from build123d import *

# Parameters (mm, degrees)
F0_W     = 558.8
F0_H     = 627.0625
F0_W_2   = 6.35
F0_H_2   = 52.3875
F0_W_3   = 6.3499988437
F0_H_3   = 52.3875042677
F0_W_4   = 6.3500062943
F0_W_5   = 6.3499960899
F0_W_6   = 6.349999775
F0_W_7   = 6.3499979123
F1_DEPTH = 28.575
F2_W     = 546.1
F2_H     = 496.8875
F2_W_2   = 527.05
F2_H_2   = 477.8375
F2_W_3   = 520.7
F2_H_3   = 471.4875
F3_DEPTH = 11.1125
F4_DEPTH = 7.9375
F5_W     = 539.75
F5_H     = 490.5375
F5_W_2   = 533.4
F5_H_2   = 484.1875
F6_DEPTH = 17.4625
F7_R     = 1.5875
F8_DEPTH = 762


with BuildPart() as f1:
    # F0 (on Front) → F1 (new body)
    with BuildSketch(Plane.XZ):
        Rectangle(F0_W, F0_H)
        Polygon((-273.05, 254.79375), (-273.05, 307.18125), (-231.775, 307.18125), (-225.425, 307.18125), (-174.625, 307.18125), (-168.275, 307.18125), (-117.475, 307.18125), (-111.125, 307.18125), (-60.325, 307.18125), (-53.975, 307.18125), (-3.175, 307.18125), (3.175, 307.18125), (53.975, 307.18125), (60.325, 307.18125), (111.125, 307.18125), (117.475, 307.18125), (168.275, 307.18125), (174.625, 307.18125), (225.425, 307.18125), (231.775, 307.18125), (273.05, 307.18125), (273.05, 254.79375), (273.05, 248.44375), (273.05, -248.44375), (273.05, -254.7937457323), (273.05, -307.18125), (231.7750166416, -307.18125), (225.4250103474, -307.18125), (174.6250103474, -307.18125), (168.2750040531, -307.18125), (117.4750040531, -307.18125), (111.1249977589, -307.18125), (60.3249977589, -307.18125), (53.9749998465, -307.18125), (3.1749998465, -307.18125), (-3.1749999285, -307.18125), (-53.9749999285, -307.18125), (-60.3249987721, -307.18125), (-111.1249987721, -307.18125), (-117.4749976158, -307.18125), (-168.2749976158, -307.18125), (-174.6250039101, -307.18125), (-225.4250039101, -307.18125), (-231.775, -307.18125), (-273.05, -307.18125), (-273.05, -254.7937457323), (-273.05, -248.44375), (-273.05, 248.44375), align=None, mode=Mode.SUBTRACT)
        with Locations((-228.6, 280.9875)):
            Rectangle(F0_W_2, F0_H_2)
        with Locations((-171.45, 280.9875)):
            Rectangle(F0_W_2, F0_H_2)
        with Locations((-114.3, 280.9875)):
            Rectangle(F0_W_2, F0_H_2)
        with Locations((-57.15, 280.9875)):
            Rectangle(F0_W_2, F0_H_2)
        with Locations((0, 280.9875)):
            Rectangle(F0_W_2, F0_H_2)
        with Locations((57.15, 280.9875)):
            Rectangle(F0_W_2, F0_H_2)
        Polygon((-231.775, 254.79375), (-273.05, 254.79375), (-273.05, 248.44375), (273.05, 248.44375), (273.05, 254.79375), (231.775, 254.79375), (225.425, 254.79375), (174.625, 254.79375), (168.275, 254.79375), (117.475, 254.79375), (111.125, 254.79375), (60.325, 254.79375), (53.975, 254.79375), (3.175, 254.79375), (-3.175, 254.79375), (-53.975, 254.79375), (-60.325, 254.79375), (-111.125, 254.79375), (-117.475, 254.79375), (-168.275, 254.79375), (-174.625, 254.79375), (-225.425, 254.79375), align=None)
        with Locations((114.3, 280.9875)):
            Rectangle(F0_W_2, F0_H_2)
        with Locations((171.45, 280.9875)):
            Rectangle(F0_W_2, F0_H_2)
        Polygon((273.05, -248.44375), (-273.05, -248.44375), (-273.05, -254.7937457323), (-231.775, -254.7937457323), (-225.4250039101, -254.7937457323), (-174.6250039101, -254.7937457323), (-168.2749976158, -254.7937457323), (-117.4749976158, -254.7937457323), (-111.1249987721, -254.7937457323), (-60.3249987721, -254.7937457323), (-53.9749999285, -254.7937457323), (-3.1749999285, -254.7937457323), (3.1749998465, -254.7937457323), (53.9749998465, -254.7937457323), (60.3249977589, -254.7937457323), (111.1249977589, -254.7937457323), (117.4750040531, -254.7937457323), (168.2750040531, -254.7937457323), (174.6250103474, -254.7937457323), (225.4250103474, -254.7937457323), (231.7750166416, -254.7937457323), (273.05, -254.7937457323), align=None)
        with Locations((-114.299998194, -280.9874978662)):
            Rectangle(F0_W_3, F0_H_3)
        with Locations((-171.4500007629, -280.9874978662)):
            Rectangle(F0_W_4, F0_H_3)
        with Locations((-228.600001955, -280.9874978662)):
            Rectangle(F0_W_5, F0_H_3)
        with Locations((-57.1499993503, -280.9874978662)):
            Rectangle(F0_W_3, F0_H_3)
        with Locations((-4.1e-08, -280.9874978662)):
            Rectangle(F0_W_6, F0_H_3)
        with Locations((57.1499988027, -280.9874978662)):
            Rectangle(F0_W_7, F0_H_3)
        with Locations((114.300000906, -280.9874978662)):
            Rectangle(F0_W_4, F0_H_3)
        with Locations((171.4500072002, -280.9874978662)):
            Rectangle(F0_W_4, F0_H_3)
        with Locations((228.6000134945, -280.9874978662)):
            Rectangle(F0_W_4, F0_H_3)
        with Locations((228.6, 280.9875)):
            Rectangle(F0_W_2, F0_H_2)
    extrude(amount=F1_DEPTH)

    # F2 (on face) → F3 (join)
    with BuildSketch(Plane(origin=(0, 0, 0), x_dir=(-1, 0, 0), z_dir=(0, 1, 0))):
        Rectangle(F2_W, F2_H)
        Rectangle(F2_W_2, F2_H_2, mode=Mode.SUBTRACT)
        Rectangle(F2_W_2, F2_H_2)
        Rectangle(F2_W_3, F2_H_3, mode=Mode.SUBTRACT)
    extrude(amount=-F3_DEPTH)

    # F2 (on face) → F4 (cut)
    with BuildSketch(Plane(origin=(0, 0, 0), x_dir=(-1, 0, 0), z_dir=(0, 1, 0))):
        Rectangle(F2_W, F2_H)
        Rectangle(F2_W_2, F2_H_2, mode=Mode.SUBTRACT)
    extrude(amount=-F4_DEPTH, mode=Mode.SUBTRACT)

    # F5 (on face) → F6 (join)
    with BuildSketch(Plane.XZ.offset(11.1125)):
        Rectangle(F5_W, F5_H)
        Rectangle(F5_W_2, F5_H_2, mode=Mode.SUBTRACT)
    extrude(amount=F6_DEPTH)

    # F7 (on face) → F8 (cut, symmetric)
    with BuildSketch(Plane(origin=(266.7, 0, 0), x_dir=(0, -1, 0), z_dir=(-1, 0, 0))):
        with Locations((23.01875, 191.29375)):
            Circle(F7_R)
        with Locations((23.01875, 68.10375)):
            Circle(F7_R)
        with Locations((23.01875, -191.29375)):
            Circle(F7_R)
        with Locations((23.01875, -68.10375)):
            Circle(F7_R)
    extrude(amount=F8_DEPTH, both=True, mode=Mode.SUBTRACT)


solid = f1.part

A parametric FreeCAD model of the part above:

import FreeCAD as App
import Part
import Sketcher
from FreeCAD import Vector
Q = App.Units.Quantity


def add_polygon(sketch, points):
    """Adds a closed chain of lines whose ends are joined by coincident constraints."""
    first, n = sketch.GeometryCount, len(points)
    for a, b in zip(points, points[1:] + points[:1]):
        sketch.addGeometry(Part.LineSegment(App.Vector(*a, 0), App.Vector(*b, 0)), False)
    for i in range(n):
        sketch.addConstraint(Sketcher.Constraint("Coincident", first + i, 2, first + (i + 1) % n, 1))

doc = App.newDocument("Part")
body = doc.addObject("PartDesign::Body", "Body")

# Sketch on XZ plane
sketch1 = doc.addObject("Sketcher::SketchObject", "Sketch")
body.addObject(sketch1)
sketch1.AttachmentSupport = (doc.XZ_Plane, [""])
sketch1.MapMode = "FlatFace"
add_polygon(sketch1, [(-279.4, 313.53125), (-279.4, -313.53125), (279.4, -313.53125), (279.4, 313.53125)])  # lines 0-3
add_polygon(sketch1, [(-273.05, -307.18125), (-273.05, -254.793746), (-231.775, -254.793746), (-231.775, -307.18125)])  # lines 4-7
add_polygon(sketch1, [(-225.425004, -254.793746), (-174.625004, -254.793746), (-174.625004, -307.18125), (-225.425004, -307.18125)])  # lines 8-11
add_polygon(sketch1, [(-168.274998, -254.793746), (-117.474998, -254.793746), (-117.474998, -307.18125), (-168.274998, -307.18125)])  # lines 12-15
add_polygon(sketch1, [(-111.124999, -254.793746), (-60.324999, -254.793746), (-60.324999, -307.18125), (-111.124999, -307.18125)])  # lines 16-19
add_polygon(sketch1, [(-53.975, -254.793746), (-3.175, -254.793746), (-3.175, -307.18125), (-53.975, -307.18125)])  # lines 20-23
add_polygon(sketch1, [(3.175, -254.793746), (53.975, -254.793746), (53.975, -307.18125), (3.175, -307.18125)])  # lines 24-27
add_polygon(sketch1, [(60.324998, -254.793746), (111.124998, -254.793746), (111.124998, -307.18125), (60.324998, -307.18125)])  # lines 28-31
add_polygon(sketch1, [(117.475004, -254.793746), (168.275004, -254.793746), (168.275004, -307.18125), (117.475004, -307.18125)])  # lines 32-35
add_polygon(sketch1, [(174.62501, -254.793746), (225.42501, -254.793746), (225.42501, -307.18125), (174.62501, -307.18125)])  # lines 36-39
add_polygon(sketch1, [(231.775017, -254.793746), (273.05, -254.793746), (273.05, -307.18125), (231.775017, -307.18125)])  # lines 40-43
add_polygon(sketch1, [(-273.05, -248.44375), (-273.05, 248.44375), (273.05, 248.44375), (273.05, -248.44375)])  # lines 44-47
add_polygon(sketch1, [(-273.05, 254.79375), (-273.05, 307.18125), (-231.775, 307.18125), (-231.775, 254.79375)])  # lines 48-51
add_polygon(sketch1, [(-225.425, 254.79375), (-225.425, 307.18125), (-174.625, 307.18125), (-174.625, 254.79375)])  # lines 52-55
add_polygon(sketch1, [(-168.275, 254.79375), (-168.275, 307.18125), (-117.475, 307.18125), (-117.475, 254.79375)])  # lines 56-59
add_polygon(sketch1, [(-111.125, 254.79375), (-111.125, 307.18125), (-60.325, 307.18125), (-60.325, 254.79375)])  # lines 60-63
add_polygon(sketch1, [(-53.975, 254.79375), (-53.975, 307.18125), (-3.175, 307.18125), (-3.175, 254.79375)])  # lines 64-67
add_polygon(sketch1, [(3.175, 254.79375), (3.175, 307.18125), (53.975, 307.18125), (53.975, 254.79375)])  # lines 68-71
add_polygon(sketch1, [(60.325, 254.79375), (60.325, 307.18125), (111.125, 307.18125), (111.125, 254.79375)])  # lines 72-75
add_polygon(sketch1, [(117.475, 307.18125), (168.275, 307.18125), (168.275, 254.79375), (117.475, 254.79375)])  # lines 76-79
add_polygon(sketch1, [(174.625, 307.18125), (225.425, 307.18125), (225.425, 254.79375), (174.625, 254.79375)])  # lines 80-83
add_polygon(sketch1, [(231.775, 307.18125), (273.05, 307.18125), (273.05, 254.79375), (231.775, 254.79375)])  # lines 84-87
sketch1.addConstraint([
    Sketcher.Constraint("Vertical", 0),
    Sketcher.Constraint("Horizontal", 1),
    Sketcher.Constraint("Vertical", 2),
    Sketcher.Constraint("Horizontal", 3),
    Sketcher.Constraint("Vertical", 4),
    Sketcher.Constraint("Horizontal", 5),
    Sketcher.Constraint("Vertical", 6),
    Sketcher.Constraint("Horizontal", 7),
    Sketcher.Constraint("Horizontal", 8),
    Sketcher.Constraint("Vertical", 9),
    Sketcher.Constraint("Horizontal", 10),
    Sketcher.Constraint("Vertical", 11),
    Sketcher.Constraint("Horizontal", 12),
    Sketcher.Constraint("Vertical", 13),
    Sketcher.Constraint("Horizontal", 14),
    Sketcher.Constraint("Vertical", 15),
    Sketcher.Constraint("Horizontal", 16),
    Sketcher.Constraint("Vertical", 17),
    Sketcher.Constraint("Horizontal", 18),
    Sketcher.Constraint("Vertical", 19),
    Sketcher.Constraint("Horizontal", 20),
    Sketcher.Constraint("Vertical", 21),
    Sketcher.Constraint("Horizontal", 22),
    Sketcher.Constraint("Vertical", 23),
    Sketcher.Constraint("Horizontal", 24),
    Sketcher.Constraint("Vertical", 25),
    Sketcher.Constraint("Horizontal", 26),
    Sketcher.Constraint("Vertical", 27),
    Sketcher.Constraint("Horizontal", 28),
    Sketcher.Constraint("Vertical", 29),
    Sketcher.Constraint("Horizontal", 30),
    Sketcher.Constraint("Vertical", 31),
    Sketcher.Constraint("Horizontal", 32),
    Sketcher.Constraint("Vertical", 33),
    Sketcher.Constraint("Horizontal", 34),
    Sketcher.Constraint("Vertical", 35),
    Sketcher.Constraint("Horizontal", 36),
    Sketcher.Constraint("Vertical", 37),
    Sketcher.Constraint("Horizontal", 38),
    Sketcher.Constraint("Vertical", 39),
    Sketcher.Constraint("Horizontal", 40),
    Sketcher.Constraint("Vertical", 41),
    Sketcher.Constraint("Horizontal", 42),
    Sketcher.Constraint("Vertical", 43),
    Sketcher.Constraint("Vertical", 44),
    Sketcher.Constraint("Horizontal", 45),
    Sketcher.Constraint("Vertical", 46),
    Sketcher.Constraint("Horizontal", 47),
    Sketcher.Constraint("Vertical", 48),
    Sketcher.Constraint("Horizontal", 49),
    Sketcher.Constraint("Vertical", 50),
    Sketcher.Constraint("Horizontal", 51),
    Sketcher.Constraint("Vertical", 52),
    Sketcher.Constraint("Horizontal", 53),
    Sketcher.Constraint("Vertical", 54),
    Sketcher.Constraint("Horizontal", 55),
    Sketcher.Constraint("Vertical", 56),
    Sketcher.Constraint("Horizontal", 57),
    Sketcher.Constraint("Vertical", 58),
    Sketcher.Constraint("Horizontal", 59),
    Sketcher.Constraint("Vertical", 60),
    Sketcher.Constraint("Horizontal", 61),
    Sketcher.Constraint("Vertical", 62),
    Sketcher.Constraint("Horizontal", 63),
    Sketcher.Constraint("Vertical", 64),
    Sketcher.Constraint("Horizontal", 65),
    Sketcher.Constraint("Vertical", 66),
    Sketcher.Constraint("Horizontal", 67),
    Sketcher.Constraint("Vertical", 68),
    Sketcher.Constraint("Horizontal", 69),
    Sketcher.Constraint("Vertical", 70),
    Sketcher.Constraint("Horizontal", 71),
    Sketcher.Constraint("Vertical", 72),
    Sketcher.Constraint("Horizontal", 73),
    Sketcher.Constraint("Vertical", 74),
    Sketcher.Constraint("Horizontal", 75),
    Sketcher.Constraint("Horizontal", 76),
    Sketcher.Constraint("Vertical", 77),
    Sketcher.Constraint("Horizontal", 78),
    Sketcher.Constraint("Vertical", 79),
    Sketcher.Constraint("Horizontal", 80),
    Sketcher.Constraint("Vertical", 81),
    Sketcher.Constraint("Horizontal", 82),
    Sketcher.Constraint("Vertical", 83),
    Sketcher.Constraint("Horizontal", 84),
    Sketcher.Constraint("Vertical", 85),
    Sketcher.Constraint("Horizontal", 86),
    Sketcher.Constraint("Vertical", 87),
    Sketcher.Constraint("Symmetric", 0, 2, 2, 2, -1, 1),
    Sketcher.Constraint("Symmetric", 44, 2, 46, 2, -1, 1),
    Sketcher.Constraint("Symmetric", 41, 2, 48, 2, -1, 1),
    Sketcher.Constraint("Symmetric", 33, 2, 56, 2, -1, 1),
    Sketcher.Constraint("Symmetric", 35, 2, 58, 2, -1, 1),
    Sketcher.Constraint("Symmetric", 29, 2, 60, 2, -1, 1),
    Sketcher.Constraint("Symmetric", 31, 2, 62, 2, -1, 1),
    Sketcher.Constraint("Symmetric", 25, 2, 64, 2, -1, 1),
    Sketcher.Constraint("Symmetric", 27, 2, 66, 2, -1, 1),
    Sketcher.Constraint("Symmetric", 21, 2, 68, 2, -1, 1),
    Sketcher.Constraint("Symmetric", 23, 2, 70, 2, -1, 1),
    Sketcher.Constraint("Symmetric", 17, 2, 72, 2, -1, 1),
    Sketcher.Constraint("Symmetric", 19, 2, 74, 2, -1, 1),
    Sketcher.Constraint("Symmetric", 14, 2, 76, 2, -1, 1),
    Sketcher.Constraint("Symmetric", 12, 2, 78, 2, -1, 1),
    Sketcher.Constraint("Symmetric", 10, 2, 80, 2, -1, 1),
    Sketcher.Constraint("Symmetric", 8, 2, 82, 2, -1, 1),
    Sketcher.Constraint("Symmetric", 7, 2, 84, 2, -1, 1),
    Sketcher.Constraint("Symmetric", 5, 2, 86, 2, -1, 1),
    Sketcher.Constraint("Symmetric", 23, 2, 24, 2, -2),
    Sketcher.Constraint("Symmetric", 21, 2, 26, 2, -2),
    Sketcher.Constraint("Symmetric", 19, 2, 28, 2, -2),
    Sketcher.Constraint("Symmetric", 17, 2, 30, 2, -2),
    Sketcher.Constraint("Symmetric", 15, 2, 32, 2, -2),
    Sketcher.Constraint("Symmetric", 13, 2, 34, 2, -2),
    Sketcher.Constraint("Symmetric", 11, 2, 36, 2, -2),
    Sketcher.Constraint("Symmetric", 9, 2, 38, 2, -2),
    Sketcher.Constraint("Symmetric", 4, 2, 40, 2, -2),
    Sketcher.Constraint("Symmetric", 52, 2, 80, 2, -2),
    Sketcher.Constraint("Symmetric", 54, 2, 82, 2, -2),
    Sketcher.Constraint("Symmetric", 50, 2, 86, 2, -2),
    Sketcher.Constraint("Horizontal", 5, 2, 8, 2),
    Sketcher.Constraint("Horizontal", 7, 2, 9, 2),
    Sketcher.Constraint("Horizontal", 11, 2, 12, 2),
    Sketcher.Constraint("Horizontal", 10, 2, 13, 2),
    Sketcher.Constraint("Horizontal", 15, 2, 16, 2),
    Sketcher.Constraint("Horizontal", 14, 2, 17, 2),
    Sketcher.Constraint("Horizontal", 19, 2, 20, 2),
    Sketcher.Constraint("Horizontal", 18, 2, 21, 2),
    Sketcher.Constraint("Horizontal", 38, 2, 41, 2),
    Sketcher.Constraint("Vertical", 7, 2, 44, 2),
    Sketcher.Constraint("Equal", 10, 12),
    Sketcher.Constraint("Equal", 14, 16),
    Sketcher.Constraint("Equal", 18, 20),
    Sketcher.Constraint("DistanceX", 1, 1, 1, 2, Q("22 in")),
    Sketcher.Constraint("DistanceX", 8, 1, 8, 2, Q("2 in")),
    Sketcher.Constraint("DistanceX", 45, 1, 45, 2, Q("21.5 in")),
    Sketcher.Constraint("DistanceX", 5, 1, 5, 2, Q("1.625 in")),
    Sketcher.Constraint("DistanceY", 0, 2, 0, 1, Q("24.6875 in")),
    Sketcher.Constraint("DistanceY", 44, 1, 44, 2, Q("19.5625 in")),
    Sketcher.Constraint("DistanceY", 48, 1, 48, 2, Q("2.0625 in")),
    Sketcher.Constraint("DistanceY", 6, 2, -1, 1, Q("12.09375 in")),
    Sketcher.Constraint("DistanceX", 8, 2, -1, 1, Q("6.8750002 in")),
    Sketcher.Constraint("DistanceX", 12, 2, -1, 1, Q("4.6249999 in")),
    Sketcher.Constraint("DistanceX", 16, 2, -1, 1, Q("2.375 in")),
    Sketcher.Constraint("DistanceX", 20, 2, -1, 1, Q("0.125 in")),
    Sketcher.Constraint("DistanceX", 40, 1, 40, 2, 41.274983),
])
pad1 = doc.addObject("PartDesign::Pad", "Pad")
body.addObject(pad1)
pad1.Profile = sketch1
pad1.Length = Q("1.125 in")

# Sketch on XZ plane
sketch2 = doc.addObject("Sketcher::SketchObject", "Sketch001")
body.addObject(sketch2)
sketch2.AttachmentSupport = (doc.XZ_Plane, [""])
sketch2.MapMode = "FlatFace"
add_polygon(sketch2, [(273.05, 248.44375), (273.05, -248.44375), (-273.05, -248.44375), (-273.05, 248.44375)])  # lines 0-3
add_polygon(sketch2, [(-260.35, -235.74375), (260.35, -235.74375), (260.35, 235.74375), (-260.35, 235.74375)])  # lines 4-7
sketch2.addConstraint([
    Sketcher.Constraint("Vertical", 0),
    Sketcher.Constraint("Horizontal", 1),
    Sketcher.Constraint("Vertical", 2),
    Sketcher.Constraint("Horizontal", 3),
    Sketcher.Constraint("Horizontal", 4),
    Sketcher.Constraint("Vertical", 5),
    Sketcher.Constraint("Horizontal", 6),
    Sketcher.Constraint("Vertical", 7),
    Sketcher.Constraint("Symmetric", 0, 2, 2, 2, -1, 1),
    Sketcher.Constraint("Symmetric", 4, 2, 6, 2, -1, 1),
    Sketcher.Constraint("DistanceX", 1, 2, 1, 1, Q("21.5 in")),
    Sketcher.Constraint("DistanceX", 4, 1, 4, 2, Q("20.5 in")),
    Sketcher.Constraint("DistanceY", 0, 2, 4, 2, Q("0.5 in")),
    Sketcher.Constraint("DistanceY", 0, 2, 0, 1, Q("19.5625 in")),
])
pad2 = doc.addObject("PartDesign::Pad", "Pad001")
body.addObject(pad2)
pad2.Profile = sketch2
pad2.Length = Q("0.4375 in")

# Sketch on XZ plane
sketch3 = doc.addObject("Sketcher::SketchObject", "Sketch002")
body.addObject(sketch3)
sketch3.AttachmentSupport = (doc.XZ_Plane, [""])
sketch3.MapMode = "FlatFace"
add_polygon(sketch3, [(273.05, 248.44375), (273.05, -248.44375), (-273.05, -248.44375), (-273.05, 248.44375)])  # lines 0-3
add_polygon(sketch3, [(-263.525, -238.91875), (263.525, -238.91875), (263.525, 238.91875), (-263.525, 238.91875)])  # lines 4-7
sketch3.addConstraint([
    Sketcher.Constraint("Vertical", 0),
    Sketcher.Constraint("Horizontal", 1),
    Sketcher.Constraint("Vertical", 2),
    Sketcher.Constraint("Horizontal", 3),
    Sketcher.Constraint("Horizontal", 4),
    Sketcher.Constraint("Vertical", 5),
    Sketcher.Constraint("Horizontal", 6),
    Sketcher.Constraint("Vertical", 7),
    Sketcher.Constraint("Symmetric", 0, 2, 2, 2, -1, 1),
    Sketcher.Constraint("Symmetric", 4, 2, 6, 2, -1, 1),
    Sketcher.Constraint("DistanceX", 1, 2, 1, 1, Q("21.5 in")),
    Sketcher.Constraint("DistanceX", 4, 1, 4, 2, Q("20.75 in")),
    Sketcher.Constraint("DistanceY", 0, 2, 0, 1, Q("19.5625 in")),
    Sketcher.Constraint("DistanceY", 5, 1, 5, 2, Q("18.8125 in")),
])
pocket1 = doc.addObject("PartDesign::Pocket", "Pocket")
body.addObject(pocket1)
pocket1.Profile = sketch3
pocket1.Length = Q("0.3125 in")
pocket1.Reversed = True

# Sketch on XZ plane
sketch4 = doc.addObject("Sketcher::SketchObject", "Sketch003")
body.addObject(sketch4)
sketch4.AttachmentSupport = (doc.XZ_Plane, [""])
sketch4.MapMode = "FlatFace"
sketch4.AttachmentOffset = App.Placement(Vector(0, 0, 0.4375 * 25.4), App.Rotation())
add_polygon(sketch4, [(-269.875, 245.26875), (-269.875, -245.26875), (269.875, -245.26875), (269.875, 245.26875)])  # lines 0-3
add_polygon(sketch4, [(266.7, -242.09375), (-266.7, -242.09375), (-266.7, 242.09375), (266.7, 242.09375)])  # lines 4-7
sketch4.addConstraint([
    Sketcher.Constraint("Vertical", 0),
    Sketcher.Constraint("Horizontal", 1),
    Sketcher.Constraint("Vertical", 2),
    Sketcher.Constraint("Horizontal", 3),
    Sketcher.Constraint("Horizontal", 4),
    Sketcher.Constraint("Vertical", 5),
    Sketcher.Constraint("Horizontal", 6),
    Sketcher.Constraint("Vertical", 7),
    Sketcher.Constraint("Symmetric", 0, 2, 2, 2, -1, 1),
    Sketcher.Constraint("Symmetric", 4, 2, 6, 2, -1, 1),
    Sketcher.Constraint("DistanceX", 4, 2, 4, 1, Q("21 in")),
    Sketcher.Constraint("DistanceX", 1, 1, 1, 2, Q("21.25 in")),
    Sketcher.Constraint("DistanceY", 0, 2, 0, 1, Q("19.3125 in")),
    Sketcher.Constraint("DistanceY", 5, 1, 5, 2, Q("19.0625 in")),
])
pad3 = doc.addObject("PartDesign::Pad", "Pad002")
body.addObject(pad3)
pad3.Profile = sketch4
pad3.Length = Q("0.6875 in")

# Sketch on YZ plane
sketch5 = doc.addObject("Sketcher::SketchObject", "Sketch004")
body.addObject(sketch5)
sketch5.AttachmentSupport = (doc.YZ_Plane, [""])
sketch5.MapMode = "FlatFace"
sketch5.AttachmentOffset = App.Placement(Vector(0, 0, 10.5 * 25.4), App.Rotation())
sketch5.addGeometry([
    Part.Circle(Vector(-23.01875, 191.29375, 0), Vector(0, 0, 1), 1.5875),
    Part.Circle(Vector(-23.01875, 68.10375, 0), Vector(0, 0, 1), 1.5875),
    Part.Circle(Vector(-23.01875, -191.29375, 0), Vector(0, 0, 1), 1.5875),
    Part.Circle(Vector(-23.01875, -68.10375, 0), Vector(0, 0, 1), 1.5875),
], False)
sketch5.addConstraint([
    Sketcher.Constraint("Equal", 0, 1),
    Sketcher.Constraint("Equal", 1, 2),
    Sketcher.Constraint("Equal", 2, 3),
    Sketcher.Constraint("Symmetric", 0, 3, 2, 3, -1),
    Sketcher.Constraint("Symmetric", 1, 3, 3, 3, -1),
    Sketcher.Constraint("Vertical", 0, 3, 1, 3),
    Sketcher.Constraint("Diameter", 0, Q("0.125 in")),
    Sketcher.Constraint("DistanceY", 1, 3, 0, 3, Q("4.85 in")),
    Sketcher.Constraint("DistanceX", 0, 3, -1, 1, Q("0.90625 in")),
    Sketcher.Constraint("DistanceY", -1, 1, 0, 3, Q("7.53125 in")),
])
pocket2 = doc.addObject("PartDesign::Pocket", "Pocket001")
body.addObject(pocket2)
pocket2.Profile = sketch5
pocket2.Length = Q("60 in")
pocket2.Midplane = True

doc.recompute()
